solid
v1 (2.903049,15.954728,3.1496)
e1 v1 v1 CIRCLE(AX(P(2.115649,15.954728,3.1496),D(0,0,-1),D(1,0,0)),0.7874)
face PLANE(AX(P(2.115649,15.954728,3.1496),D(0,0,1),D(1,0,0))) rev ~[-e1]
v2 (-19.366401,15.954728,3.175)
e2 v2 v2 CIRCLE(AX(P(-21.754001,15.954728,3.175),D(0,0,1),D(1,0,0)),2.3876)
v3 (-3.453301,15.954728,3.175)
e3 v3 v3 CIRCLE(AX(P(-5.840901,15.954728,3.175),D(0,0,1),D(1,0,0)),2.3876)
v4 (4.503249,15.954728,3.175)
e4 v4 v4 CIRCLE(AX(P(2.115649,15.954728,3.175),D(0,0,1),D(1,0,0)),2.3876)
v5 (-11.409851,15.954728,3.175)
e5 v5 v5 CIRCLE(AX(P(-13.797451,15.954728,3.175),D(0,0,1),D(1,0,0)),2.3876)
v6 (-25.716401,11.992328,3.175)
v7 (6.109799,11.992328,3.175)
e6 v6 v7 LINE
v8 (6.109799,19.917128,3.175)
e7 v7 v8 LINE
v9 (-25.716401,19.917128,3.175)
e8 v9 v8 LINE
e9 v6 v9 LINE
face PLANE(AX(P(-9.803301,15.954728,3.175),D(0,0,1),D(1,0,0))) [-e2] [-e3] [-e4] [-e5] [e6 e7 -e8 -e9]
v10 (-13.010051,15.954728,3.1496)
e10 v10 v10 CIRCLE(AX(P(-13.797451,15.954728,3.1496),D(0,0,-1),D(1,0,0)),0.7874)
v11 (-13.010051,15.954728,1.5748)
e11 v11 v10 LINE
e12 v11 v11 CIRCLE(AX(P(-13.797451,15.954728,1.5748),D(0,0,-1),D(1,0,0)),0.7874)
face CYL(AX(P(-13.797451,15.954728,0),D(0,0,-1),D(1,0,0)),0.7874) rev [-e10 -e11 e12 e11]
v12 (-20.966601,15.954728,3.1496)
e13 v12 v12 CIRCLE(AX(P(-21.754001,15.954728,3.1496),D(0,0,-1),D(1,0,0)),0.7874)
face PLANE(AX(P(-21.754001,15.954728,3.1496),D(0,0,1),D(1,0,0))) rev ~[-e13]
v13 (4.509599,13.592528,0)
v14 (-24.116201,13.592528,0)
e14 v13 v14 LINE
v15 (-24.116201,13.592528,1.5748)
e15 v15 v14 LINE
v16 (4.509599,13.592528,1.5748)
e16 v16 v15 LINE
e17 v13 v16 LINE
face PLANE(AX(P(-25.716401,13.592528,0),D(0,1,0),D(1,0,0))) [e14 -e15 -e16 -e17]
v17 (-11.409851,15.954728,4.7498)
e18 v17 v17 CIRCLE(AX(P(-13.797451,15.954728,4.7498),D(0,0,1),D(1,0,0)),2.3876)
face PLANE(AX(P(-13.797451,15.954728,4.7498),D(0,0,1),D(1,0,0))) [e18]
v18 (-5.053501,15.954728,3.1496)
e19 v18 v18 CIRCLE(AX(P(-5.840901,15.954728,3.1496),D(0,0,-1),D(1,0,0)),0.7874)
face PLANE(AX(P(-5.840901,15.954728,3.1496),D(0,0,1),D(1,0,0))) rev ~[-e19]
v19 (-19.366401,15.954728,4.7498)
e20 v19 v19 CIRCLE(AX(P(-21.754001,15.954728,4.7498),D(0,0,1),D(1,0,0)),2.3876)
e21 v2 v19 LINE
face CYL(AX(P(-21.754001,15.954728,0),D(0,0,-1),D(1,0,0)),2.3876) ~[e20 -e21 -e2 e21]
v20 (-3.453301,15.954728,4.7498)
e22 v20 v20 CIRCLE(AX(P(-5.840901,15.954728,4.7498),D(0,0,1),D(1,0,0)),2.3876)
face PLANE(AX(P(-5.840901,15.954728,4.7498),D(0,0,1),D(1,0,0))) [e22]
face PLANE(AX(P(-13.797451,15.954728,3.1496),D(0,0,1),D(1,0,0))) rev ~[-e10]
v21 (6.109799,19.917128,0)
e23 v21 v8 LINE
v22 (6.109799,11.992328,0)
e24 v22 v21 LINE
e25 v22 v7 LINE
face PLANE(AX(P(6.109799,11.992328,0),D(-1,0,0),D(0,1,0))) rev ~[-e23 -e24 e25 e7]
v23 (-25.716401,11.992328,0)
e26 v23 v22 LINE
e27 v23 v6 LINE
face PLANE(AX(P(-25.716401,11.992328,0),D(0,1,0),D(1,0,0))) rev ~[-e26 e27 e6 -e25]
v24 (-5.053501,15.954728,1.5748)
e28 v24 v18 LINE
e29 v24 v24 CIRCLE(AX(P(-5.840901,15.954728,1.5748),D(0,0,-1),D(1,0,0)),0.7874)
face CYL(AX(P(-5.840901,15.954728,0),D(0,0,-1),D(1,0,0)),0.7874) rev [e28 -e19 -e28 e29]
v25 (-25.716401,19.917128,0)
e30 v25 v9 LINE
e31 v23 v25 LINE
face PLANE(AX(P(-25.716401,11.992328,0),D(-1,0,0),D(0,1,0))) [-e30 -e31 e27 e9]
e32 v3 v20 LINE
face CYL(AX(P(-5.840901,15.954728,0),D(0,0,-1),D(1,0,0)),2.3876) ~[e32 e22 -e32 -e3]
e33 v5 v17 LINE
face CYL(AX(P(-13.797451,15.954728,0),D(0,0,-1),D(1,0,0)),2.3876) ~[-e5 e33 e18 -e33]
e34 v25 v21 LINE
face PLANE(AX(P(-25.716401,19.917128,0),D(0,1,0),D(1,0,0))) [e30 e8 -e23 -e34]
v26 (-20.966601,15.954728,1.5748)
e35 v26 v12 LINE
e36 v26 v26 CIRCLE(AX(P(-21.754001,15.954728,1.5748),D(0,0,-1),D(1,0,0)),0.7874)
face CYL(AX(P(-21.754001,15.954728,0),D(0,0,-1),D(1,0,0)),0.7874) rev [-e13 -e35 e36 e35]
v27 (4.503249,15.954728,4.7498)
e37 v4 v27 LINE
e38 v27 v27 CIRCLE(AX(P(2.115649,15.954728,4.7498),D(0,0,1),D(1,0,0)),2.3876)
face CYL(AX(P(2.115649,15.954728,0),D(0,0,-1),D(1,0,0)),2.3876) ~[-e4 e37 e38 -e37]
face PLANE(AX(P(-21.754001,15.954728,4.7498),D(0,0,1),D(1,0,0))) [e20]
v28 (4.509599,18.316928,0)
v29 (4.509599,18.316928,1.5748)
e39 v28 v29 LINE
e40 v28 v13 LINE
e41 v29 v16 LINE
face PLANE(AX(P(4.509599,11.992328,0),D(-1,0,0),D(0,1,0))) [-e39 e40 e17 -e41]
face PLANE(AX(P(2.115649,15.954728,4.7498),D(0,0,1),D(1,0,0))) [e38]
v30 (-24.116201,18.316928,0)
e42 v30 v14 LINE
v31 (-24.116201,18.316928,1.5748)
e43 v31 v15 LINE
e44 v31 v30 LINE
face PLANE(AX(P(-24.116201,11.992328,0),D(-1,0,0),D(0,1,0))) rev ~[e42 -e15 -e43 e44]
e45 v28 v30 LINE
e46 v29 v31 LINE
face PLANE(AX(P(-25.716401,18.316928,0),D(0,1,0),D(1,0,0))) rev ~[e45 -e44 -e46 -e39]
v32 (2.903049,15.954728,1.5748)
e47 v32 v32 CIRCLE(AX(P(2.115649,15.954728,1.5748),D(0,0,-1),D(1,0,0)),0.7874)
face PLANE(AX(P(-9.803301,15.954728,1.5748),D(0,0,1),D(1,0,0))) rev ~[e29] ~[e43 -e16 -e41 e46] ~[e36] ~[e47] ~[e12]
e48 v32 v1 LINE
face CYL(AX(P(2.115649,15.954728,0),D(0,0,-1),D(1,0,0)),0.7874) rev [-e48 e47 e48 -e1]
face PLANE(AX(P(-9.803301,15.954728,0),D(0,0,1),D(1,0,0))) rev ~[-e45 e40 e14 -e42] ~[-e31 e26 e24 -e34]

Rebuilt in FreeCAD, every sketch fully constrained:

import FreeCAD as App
import Part
import Sketcher

V = App.Vector
Q = App.Units.Quantity


def faces_at(feature, points):
    """Names of the faces that lie closest to the given points."""
    faces = feature.Shape.Faces
    near = lambda p: min(range(len(faces)), key=lambda i: faces[i].distToShape(Part.Vertex(*p))[0])
    return sorted({f"Face{near(p) + 1}" for p in points})


def add_polygon(sketch, points):
    """Adds a closed chain of lines whose ends are joined by coincident constraints."""
    first, n = sketch.GeometryCount, len(points)
    for a, b in zip(points, points[1:] + points[:1]):
        sketch.addGeometry(Part.LineSegment(App.Vector(*a, 0), App.Vector(*b, 0)), False)
    for i in range(n):
        sketch.addConstraint(Sketcher.Constraint("Coincident", first + i, 2, first + (i + 1) % n, 1))

doc = App.newDocument("Part")
body = doc.addObject("PartDesign::Body", "Body")

sketch1 = doc.addObject("Sketcher::SketchObject", "Sketch")
body.addObject(sketch1)
sketch1.AttachmentSupport = (doc.XY_Plane, [""])
sketch1.MapMode = "FlatFace"
add_polygon(sketch1, [(-25.7, 19.9), (-25.7, 12), (6.1, 12), (6.1, 19.9)])
sketch1.addGeometry(Part.Circle(V(-21.8, 16, 0), V(0, 0, 1), 2.4), False)
sketch1.addGeometry(Part.Circle(V(-13.8, 16, 0), V(0, 0, 1), 2.4), False)
sketch1.addGeometry(Part.Circle(V(-5.8, 16, 0), V(0, 0, 1), 2.4), False)
sketch1.addGeometry(Part.Circle(V(2.1, 16, 0), V(0, 0, 1), 2.4), False)
sketch1.addConstraint(Sketcher.Constraint("Vertical", 0))
sketch1.addConstraint(Sketcher.Constraint("Horizontal", 1))
sketch1.addConstraint(Sketcher.Constraint("Vertical", 2))
sketch1.addConstraint(Sketcher.Constraint("Horizontal", 3))
sketch1.addConstraint(Sketcher.Constraint("Equal", 4, 5))
sketch1.addConstraint(Sketcher.Constraint("Equal", 5, 6))
sketch1.addConstraint(Sketcher.Constraint("Equal", 6, 7))
sketch1.addConstraint(Sketcher.Constraint("Horizontal", 4, 3, 5, 3))
sketch1.addConstraint(Sketcher.Constraint("Horizontal", 5, 3, 6, 3))
sketch1.addConstraint(Sketcher.Constraint("Horizontal", 6, 3, 7, 3))
sketch1.addConstraint(Sketcher.Constraint("Diameter", 4, Q("0.188 in")))
sketch1.addConstraint(Sketcher.Constraint("DistanceX", 1, 1, 1, 2, Q("1.253 in")))
sketch1.addConstraint(Sketcher.Constraint("DistanceY", 0, 2, 0, 1, Q("0.312 in")))
sketch1.addConstraint(Sketcher.Constraint("DistanceX", 0, 2, 4, 3, Q("0.156 in")))
sketch1.addConstraint(Sketcher.Constraint("DistanceY", 0, 2, 4, 3, Q("0.156 in")))
sketch1.addConstraint(Sketcher.Constraint("DistanceX", 4, 3, 6, 3, Q("0.6265 in")))
sketch1.addConstraint(Sketcher.Constraint("DistanceX", 5, 3, 7, 3, Q("0.6265 in")))
sketch1.addConstraint(Sketcher.Constraint("DistanceX", 4, 3, -1, 1, Q("21.754001 mm")))
sketch1.addConstraint(Sketcher.Constraint("DistanceX", 5, 3, -1, 1, Q("13.797451 mm")))
sketch1.addConstraint(Sketcher.Constraint("DistanceY", -1, 1, 4, 3, Q("15.954728 mm")))
pad1 = doc.addObject("PartDesign::Pad", "Pad")
body.addObject(pad1)
pad1.Profile = sketch1
pad1.Length = Q("0.125 in")

sketch2 = doc.addObject("Sketcher::SketchObject", "Sketch001")
body.addObject(sketch2)
sketch2.AttachmentSupport = (doc.XY_Plane, [""])
sketch2.MapMode = "FlatFace"
sketch2.addGeometry(Part.Circle(V(-21.8, 16, 0), V(0, 0, 1), 2.4), False)
sketch2.addGeometry(Part.Circle(V(-13.8, 16, 0), V(0, 0, 1), 2.4), False)
sketch2.addGeometry(Part.Circle(V(-5.8, 16, 0), V(0, 0, 1), 2.4), False)
sketch2.addGeometry(Part.Circle(V(2.1, 16, 0), V(0, 0, 1), 2.4), False)
sketch2.addConstraint(Sketcher.Constraint("Equal", 0, 1))
sketch2.addConstraint(Sketcher.Constraint("Equal", 1, 2))
sketch2.addConstraint(Sketcher.Constraint("Equal", 2, 3))
sketch2.addConstraint(Sketcher.Constraint("Horizontal", 0, 3, 1, 3))
sketch2.addConstraint(Sketcher.Constraint("Horizontal", 1, 3, 2, 3))
sketch2.addConstraint(Sketcher.Constraint("Horizontal", 2, 3, 3, 3))
sketch2.addConstraint(Sketcher.Constraint("Diameter", 0, Q("0.188 in")))
sketch2.addConstraint(Sketcher.Constraint("DistanceX", 0, 3, 2, 3, Q("0.6265 in")))
sketch2.addConstraint(Sketcher.Constraint("DistanceX", 1, 3, 3, 3, Q("0.6265 in")))
sketch2.addConstraint(Sketcher.Constraint("DistanceX", 0, 3, -1, 1, Q("21.754001 mm")))
sketch2.addConstraint(Sketcher.Constraint("DistanceX", 1, 3, -1, 1, Q("13.797451 mm")))
sketch2.addConstraint(Sketcher.Constraint("DistanceY", -1, 1, 0, 3, Q("15.954728 mm")))
pad2 = doc.addObject("PartDesign::Pad", "Pad001")
body.addObject(pad2)
pad2.Profile = sketch2
pad2.Length = Q("0.187 in")
doc.recompute()

thickness = doc.addObject("PartDesign::Thickness", "Thickness")
body.addObject(thickness)
thickness.Base = (pad2, faces_at(pad2, [(-9.803, 15.955, 0)]))
thickness.Value = Q("0.063 in")
thickness.Reversed = True
thickness.Join = "Intersection"

doc.recompute()
